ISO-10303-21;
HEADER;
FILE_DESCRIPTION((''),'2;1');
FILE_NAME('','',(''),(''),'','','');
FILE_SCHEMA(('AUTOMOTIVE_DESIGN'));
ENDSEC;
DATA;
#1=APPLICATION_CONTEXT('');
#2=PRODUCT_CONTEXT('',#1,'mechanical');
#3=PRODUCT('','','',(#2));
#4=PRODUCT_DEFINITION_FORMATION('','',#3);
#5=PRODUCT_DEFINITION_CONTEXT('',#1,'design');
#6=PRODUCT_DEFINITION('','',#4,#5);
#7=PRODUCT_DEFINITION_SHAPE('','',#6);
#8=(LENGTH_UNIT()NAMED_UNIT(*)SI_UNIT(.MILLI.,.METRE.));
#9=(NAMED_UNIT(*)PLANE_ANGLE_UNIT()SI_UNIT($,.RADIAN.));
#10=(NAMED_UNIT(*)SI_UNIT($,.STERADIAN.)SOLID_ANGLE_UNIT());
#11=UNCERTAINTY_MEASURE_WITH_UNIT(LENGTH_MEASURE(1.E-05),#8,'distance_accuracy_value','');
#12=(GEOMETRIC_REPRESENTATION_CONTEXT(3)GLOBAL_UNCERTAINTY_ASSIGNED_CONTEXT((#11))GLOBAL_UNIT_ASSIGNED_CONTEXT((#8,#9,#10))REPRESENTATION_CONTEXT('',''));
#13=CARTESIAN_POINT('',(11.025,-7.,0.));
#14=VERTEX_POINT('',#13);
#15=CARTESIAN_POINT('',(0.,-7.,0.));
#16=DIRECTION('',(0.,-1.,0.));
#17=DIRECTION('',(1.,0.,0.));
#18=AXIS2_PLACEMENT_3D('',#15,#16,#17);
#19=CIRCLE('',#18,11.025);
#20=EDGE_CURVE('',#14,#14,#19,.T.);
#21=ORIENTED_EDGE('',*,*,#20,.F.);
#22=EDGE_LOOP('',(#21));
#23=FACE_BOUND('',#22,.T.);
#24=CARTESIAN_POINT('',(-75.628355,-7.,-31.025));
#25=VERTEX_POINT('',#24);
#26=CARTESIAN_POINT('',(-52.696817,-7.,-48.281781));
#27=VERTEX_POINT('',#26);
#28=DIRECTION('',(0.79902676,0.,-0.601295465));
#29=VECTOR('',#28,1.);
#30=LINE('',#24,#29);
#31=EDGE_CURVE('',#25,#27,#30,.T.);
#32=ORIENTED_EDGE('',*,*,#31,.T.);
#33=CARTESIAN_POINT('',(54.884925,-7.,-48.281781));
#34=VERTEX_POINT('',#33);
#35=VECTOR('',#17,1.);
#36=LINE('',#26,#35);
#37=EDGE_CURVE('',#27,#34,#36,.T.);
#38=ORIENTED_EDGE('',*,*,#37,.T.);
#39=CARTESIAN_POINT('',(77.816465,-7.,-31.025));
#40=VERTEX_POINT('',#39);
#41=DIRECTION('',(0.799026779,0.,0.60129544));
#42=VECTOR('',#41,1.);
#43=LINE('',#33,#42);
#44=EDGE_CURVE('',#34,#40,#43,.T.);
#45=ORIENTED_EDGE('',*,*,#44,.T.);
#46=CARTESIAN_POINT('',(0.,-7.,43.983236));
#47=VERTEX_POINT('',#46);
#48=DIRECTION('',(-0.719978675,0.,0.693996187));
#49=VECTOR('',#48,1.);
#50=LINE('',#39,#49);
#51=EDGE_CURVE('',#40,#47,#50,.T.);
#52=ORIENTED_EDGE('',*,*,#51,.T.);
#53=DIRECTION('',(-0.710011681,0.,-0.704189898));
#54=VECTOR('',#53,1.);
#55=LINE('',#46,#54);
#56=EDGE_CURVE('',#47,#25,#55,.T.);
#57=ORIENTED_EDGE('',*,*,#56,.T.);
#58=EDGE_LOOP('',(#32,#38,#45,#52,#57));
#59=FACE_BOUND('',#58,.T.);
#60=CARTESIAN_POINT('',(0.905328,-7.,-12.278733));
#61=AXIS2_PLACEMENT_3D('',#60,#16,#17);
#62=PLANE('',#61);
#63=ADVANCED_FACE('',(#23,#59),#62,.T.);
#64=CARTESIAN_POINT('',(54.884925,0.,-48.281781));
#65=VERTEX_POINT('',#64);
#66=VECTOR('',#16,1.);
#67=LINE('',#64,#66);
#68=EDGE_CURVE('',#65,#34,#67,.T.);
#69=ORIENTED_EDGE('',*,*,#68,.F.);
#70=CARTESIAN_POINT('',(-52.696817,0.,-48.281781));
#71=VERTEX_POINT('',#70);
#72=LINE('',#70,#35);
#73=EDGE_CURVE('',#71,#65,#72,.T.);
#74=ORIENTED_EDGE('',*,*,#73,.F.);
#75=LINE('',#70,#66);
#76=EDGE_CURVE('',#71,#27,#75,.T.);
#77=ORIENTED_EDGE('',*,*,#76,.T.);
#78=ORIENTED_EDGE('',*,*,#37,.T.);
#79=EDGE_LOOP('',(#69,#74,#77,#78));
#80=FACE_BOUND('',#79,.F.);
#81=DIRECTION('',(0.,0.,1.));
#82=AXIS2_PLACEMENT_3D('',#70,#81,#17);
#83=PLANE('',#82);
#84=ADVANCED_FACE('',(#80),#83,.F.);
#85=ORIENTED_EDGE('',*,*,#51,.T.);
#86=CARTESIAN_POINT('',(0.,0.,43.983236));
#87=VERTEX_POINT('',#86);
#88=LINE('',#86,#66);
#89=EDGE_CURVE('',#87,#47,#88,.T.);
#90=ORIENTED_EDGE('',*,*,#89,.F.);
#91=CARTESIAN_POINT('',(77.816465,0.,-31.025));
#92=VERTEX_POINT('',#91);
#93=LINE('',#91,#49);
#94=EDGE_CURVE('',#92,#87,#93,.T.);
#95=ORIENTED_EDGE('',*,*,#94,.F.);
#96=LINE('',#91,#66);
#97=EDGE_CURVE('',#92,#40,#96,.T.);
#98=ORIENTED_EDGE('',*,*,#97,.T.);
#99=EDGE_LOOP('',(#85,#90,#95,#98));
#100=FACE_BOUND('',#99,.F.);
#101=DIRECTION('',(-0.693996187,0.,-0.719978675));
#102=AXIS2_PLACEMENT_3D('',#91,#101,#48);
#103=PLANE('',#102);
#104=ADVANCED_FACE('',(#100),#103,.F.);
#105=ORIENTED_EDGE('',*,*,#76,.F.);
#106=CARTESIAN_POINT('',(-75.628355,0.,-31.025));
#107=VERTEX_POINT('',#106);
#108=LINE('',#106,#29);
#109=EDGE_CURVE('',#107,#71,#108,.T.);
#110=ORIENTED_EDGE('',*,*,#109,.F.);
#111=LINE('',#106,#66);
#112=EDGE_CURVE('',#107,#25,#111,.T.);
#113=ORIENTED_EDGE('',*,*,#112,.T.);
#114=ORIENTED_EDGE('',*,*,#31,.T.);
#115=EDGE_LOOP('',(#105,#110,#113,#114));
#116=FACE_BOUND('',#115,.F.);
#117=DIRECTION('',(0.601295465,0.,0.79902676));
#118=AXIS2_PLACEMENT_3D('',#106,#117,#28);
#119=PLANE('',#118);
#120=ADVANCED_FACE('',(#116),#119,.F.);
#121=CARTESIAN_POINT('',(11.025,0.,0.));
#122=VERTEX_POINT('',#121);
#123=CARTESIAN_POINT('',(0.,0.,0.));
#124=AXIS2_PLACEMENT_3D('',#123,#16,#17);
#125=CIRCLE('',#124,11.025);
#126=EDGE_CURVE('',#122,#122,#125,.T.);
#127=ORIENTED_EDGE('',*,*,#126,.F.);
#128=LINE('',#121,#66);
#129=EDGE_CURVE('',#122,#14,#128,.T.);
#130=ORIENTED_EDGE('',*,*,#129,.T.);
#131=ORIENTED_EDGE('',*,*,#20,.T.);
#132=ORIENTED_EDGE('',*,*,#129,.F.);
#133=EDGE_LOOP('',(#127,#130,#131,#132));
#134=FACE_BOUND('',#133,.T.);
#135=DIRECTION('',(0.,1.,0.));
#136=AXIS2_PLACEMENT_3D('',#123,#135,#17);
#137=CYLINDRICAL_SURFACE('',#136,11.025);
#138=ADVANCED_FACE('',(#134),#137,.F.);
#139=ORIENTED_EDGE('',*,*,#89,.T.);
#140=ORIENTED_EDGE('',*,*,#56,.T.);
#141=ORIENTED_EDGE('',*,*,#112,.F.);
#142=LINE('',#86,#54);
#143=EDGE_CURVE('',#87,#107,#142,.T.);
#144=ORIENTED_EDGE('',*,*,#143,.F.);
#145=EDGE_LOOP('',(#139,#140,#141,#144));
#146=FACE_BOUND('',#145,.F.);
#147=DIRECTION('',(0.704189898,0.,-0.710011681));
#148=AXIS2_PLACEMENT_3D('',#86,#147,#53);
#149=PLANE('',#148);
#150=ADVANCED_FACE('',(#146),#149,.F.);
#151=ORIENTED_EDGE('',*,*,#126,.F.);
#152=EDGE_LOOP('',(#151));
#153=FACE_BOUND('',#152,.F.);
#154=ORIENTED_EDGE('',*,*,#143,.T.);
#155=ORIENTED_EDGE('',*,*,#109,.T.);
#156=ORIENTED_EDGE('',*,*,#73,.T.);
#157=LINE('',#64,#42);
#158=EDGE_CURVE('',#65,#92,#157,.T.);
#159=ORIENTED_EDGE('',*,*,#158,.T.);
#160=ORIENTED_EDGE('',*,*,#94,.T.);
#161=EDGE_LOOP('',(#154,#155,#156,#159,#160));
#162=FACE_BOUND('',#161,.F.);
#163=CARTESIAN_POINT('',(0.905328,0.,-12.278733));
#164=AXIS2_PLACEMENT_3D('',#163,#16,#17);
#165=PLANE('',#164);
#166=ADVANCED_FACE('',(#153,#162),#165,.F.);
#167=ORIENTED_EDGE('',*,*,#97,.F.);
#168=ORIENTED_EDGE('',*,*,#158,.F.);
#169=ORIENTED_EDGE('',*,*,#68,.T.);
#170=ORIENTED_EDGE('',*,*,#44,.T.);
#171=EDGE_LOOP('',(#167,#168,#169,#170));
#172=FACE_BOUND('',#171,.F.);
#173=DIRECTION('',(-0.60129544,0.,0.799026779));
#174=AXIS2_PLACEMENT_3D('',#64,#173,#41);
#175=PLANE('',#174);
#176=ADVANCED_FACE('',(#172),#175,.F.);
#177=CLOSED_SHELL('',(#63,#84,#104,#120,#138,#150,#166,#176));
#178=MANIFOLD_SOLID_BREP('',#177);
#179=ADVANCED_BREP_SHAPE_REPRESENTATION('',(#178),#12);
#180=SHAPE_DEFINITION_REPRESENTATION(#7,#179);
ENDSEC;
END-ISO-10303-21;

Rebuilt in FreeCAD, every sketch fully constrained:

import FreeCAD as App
import Part
import Sketcher
from FreeCAD import Vector
Q = App.Units.Quantity


def add_polygon(sketch, points):
    """Adds a closed chain of lines whose ends are joined by coincident constraints."""
    first, n = sketch.GeometryCount, len(points)
    for a, b in zip(points, points[1:] + points[:1]):
        sketch.addGeometry(Part.LineSegment(App.Vector(*a, 0), App.Vector(*b, 0)), False)
    for i in range(n):
        sketch.addConstraint(Sketcher.Constraint("Coincident", first + i, 2, first + (i + 1) % n, 1))

doc = App.newDocument("Part")
body = doc.addObject("PartDesign::Body", "Body")

sketch1 = doc.addObject("Sketcher::SketchObject", "Sketch")
body.addObject(sketch1)
sketch1.AttachmentSupport = (doc.XZ_Plane, [""])
sketch1.MapMode = "FlatFace"
add_polygon(sketch1, [(77.816465, -31.025), (0, 43.983236), (-75.628355, -31.025), (-52.696817, -48.281781), (54.884925, -48.281781)])
sketch1.addGeometry(Part.Circle(Vector(0, 0, 0), Vector(0, 0, 1), 11.025), False)
sketch1.addConstraint([
    Sketcher.Constraint("Horizontal", 3),
    Sketcher.Constraint("Coincident", 5, 3, -1, 1),
    Sketcher.Constraint("PointOnObject", 0, 2, -2),
    Sketcher.Constraint("Horizontal", 1, 2, 4, 2),
    Sketcher.Constraint("Equal", 2, 4),
    Sketcher.Constraint("Diameter", 5, Q("22.05 mm")),
    Sketcher.Constraint("DistanceY", 1, 2, -1, 1, Q("31.025 mm")),
    Sketcher.Constraint("Distance", 4, Q("28.699338 mm")),
    Sketcher.Constraint("DistanceX", 3, 1, 3, 2, Q("107.581742 mm")),
    Sketcher.Constraint("DistanceY", 2, 2, -1, 1, Q("48.281781 mm")),
    Sketcher.Constraint("Distance", 0, Q("108.081625 mm")),
    Sketcher.Constraint("Distance", 1, Q("106.517058 mm")),
])
pad1 = doc.addObject("PartDesign::Pad", "Pad")
body.addObject(pad1)
pad1.Profile = sketch1
pad1.Length = 7

doc.recompute()
